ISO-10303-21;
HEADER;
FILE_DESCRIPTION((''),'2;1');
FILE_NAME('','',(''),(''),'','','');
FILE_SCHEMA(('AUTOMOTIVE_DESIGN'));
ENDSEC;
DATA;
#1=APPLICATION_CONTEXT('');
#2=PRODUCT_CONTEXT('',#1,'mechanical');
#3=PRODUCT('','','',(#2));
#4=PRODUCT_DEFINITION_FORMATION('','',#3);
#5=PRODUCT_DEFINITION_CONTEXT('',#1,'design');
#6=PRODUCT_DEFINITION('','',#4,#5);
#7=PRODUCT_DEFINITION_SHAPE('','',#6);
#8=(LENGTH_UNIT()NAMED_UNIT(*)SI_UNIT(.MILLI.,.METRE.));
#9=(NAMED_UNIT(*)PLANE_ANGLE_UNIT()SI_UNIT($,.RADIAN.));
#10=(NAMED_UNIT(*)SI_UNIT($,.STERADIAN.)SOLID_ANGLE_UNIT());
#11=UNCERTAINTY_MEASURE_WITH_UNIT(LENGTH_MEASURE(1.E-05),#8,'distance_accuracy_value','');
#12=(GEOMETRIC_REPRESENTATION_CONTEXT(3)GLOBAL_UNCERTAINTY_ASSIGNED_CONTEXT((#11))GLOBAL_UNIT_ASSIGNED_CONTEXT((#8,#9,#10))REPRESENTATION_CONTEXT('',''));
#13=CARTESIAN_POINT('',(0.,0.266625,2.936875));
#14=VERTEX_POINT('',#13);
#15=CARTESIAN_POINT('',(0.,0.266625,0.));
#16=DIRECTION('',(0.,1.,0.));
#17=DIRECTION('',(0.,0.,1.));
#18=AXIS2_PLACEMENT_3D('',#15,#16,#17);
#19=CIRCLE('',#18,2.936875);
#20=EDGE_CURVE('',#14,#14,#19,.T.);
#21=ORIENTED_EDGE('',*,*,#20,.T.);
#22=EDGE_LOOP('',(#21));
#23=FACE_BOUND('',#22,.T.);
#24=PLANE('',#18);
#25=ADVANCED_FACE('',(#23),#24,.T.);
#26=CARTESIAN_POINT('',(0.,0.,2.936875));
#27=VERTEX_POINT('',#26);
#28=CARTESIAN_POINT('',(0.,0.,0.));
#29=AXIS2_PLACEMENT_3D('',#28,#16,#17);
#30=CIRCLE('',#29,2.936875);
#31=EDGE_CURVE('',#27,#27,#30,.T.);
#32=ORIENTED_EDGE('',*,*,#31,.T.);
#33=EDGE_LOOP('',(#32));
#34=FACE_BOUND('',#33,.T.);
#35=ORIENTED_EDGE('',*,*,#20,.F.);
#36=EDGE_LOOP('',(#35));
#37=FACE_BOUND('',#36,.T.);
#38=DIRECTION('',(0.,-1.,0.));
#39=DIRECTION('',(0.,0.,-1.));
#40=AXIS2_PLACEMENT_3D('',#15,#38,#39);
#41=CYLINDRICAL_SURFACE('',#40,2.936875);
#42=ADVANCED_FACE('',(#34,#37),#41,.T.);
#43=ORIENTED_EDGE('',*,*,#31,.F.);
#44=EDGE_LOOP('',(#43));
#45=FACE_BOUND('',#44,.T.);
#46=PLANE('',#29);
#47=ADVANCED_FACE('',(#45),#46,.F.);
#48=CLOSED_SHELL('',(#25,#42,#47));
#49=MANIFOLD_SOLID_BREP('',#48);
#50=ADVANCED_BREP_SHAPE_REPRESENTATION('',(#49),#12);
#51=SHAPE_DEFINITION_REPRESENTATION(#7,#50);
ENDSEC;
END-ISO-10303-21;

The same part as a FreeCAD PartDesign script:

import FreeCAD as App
import Part
import Sketcher

doc = App.newDocument("Part")
body = doc.addObject("PartDesign::Body", "Body")

# Sketch on XZ plane
sketch1 = doc.addObject("Sketcher::SketchObject", "Sketch")
body.addObject(sketch1)
sketch1.AttachmentSupport = (doc.XZ_Plane, [""])
sketch1.MapMode = "FlatFace"
sketch1.addGeometry(Part.Circle(App.Vector(0, 0, 0), App.Vector(0, 0, 1), 2.9), False)
sketch1.addConstraint([
    Sketcher.Constraint("Coincident", 0, 3, -1, 1),
    Sketcher.Constraint("Diameter", 0, 5.87375),
])
pad1 = doc.addObject("PartDesign::Pad", "Pad")
body.addObject(pad1)
pad1.Profile = sketch1
pad1.Length = 0.266625
pad1.Reversed = True

doc.recompute()
